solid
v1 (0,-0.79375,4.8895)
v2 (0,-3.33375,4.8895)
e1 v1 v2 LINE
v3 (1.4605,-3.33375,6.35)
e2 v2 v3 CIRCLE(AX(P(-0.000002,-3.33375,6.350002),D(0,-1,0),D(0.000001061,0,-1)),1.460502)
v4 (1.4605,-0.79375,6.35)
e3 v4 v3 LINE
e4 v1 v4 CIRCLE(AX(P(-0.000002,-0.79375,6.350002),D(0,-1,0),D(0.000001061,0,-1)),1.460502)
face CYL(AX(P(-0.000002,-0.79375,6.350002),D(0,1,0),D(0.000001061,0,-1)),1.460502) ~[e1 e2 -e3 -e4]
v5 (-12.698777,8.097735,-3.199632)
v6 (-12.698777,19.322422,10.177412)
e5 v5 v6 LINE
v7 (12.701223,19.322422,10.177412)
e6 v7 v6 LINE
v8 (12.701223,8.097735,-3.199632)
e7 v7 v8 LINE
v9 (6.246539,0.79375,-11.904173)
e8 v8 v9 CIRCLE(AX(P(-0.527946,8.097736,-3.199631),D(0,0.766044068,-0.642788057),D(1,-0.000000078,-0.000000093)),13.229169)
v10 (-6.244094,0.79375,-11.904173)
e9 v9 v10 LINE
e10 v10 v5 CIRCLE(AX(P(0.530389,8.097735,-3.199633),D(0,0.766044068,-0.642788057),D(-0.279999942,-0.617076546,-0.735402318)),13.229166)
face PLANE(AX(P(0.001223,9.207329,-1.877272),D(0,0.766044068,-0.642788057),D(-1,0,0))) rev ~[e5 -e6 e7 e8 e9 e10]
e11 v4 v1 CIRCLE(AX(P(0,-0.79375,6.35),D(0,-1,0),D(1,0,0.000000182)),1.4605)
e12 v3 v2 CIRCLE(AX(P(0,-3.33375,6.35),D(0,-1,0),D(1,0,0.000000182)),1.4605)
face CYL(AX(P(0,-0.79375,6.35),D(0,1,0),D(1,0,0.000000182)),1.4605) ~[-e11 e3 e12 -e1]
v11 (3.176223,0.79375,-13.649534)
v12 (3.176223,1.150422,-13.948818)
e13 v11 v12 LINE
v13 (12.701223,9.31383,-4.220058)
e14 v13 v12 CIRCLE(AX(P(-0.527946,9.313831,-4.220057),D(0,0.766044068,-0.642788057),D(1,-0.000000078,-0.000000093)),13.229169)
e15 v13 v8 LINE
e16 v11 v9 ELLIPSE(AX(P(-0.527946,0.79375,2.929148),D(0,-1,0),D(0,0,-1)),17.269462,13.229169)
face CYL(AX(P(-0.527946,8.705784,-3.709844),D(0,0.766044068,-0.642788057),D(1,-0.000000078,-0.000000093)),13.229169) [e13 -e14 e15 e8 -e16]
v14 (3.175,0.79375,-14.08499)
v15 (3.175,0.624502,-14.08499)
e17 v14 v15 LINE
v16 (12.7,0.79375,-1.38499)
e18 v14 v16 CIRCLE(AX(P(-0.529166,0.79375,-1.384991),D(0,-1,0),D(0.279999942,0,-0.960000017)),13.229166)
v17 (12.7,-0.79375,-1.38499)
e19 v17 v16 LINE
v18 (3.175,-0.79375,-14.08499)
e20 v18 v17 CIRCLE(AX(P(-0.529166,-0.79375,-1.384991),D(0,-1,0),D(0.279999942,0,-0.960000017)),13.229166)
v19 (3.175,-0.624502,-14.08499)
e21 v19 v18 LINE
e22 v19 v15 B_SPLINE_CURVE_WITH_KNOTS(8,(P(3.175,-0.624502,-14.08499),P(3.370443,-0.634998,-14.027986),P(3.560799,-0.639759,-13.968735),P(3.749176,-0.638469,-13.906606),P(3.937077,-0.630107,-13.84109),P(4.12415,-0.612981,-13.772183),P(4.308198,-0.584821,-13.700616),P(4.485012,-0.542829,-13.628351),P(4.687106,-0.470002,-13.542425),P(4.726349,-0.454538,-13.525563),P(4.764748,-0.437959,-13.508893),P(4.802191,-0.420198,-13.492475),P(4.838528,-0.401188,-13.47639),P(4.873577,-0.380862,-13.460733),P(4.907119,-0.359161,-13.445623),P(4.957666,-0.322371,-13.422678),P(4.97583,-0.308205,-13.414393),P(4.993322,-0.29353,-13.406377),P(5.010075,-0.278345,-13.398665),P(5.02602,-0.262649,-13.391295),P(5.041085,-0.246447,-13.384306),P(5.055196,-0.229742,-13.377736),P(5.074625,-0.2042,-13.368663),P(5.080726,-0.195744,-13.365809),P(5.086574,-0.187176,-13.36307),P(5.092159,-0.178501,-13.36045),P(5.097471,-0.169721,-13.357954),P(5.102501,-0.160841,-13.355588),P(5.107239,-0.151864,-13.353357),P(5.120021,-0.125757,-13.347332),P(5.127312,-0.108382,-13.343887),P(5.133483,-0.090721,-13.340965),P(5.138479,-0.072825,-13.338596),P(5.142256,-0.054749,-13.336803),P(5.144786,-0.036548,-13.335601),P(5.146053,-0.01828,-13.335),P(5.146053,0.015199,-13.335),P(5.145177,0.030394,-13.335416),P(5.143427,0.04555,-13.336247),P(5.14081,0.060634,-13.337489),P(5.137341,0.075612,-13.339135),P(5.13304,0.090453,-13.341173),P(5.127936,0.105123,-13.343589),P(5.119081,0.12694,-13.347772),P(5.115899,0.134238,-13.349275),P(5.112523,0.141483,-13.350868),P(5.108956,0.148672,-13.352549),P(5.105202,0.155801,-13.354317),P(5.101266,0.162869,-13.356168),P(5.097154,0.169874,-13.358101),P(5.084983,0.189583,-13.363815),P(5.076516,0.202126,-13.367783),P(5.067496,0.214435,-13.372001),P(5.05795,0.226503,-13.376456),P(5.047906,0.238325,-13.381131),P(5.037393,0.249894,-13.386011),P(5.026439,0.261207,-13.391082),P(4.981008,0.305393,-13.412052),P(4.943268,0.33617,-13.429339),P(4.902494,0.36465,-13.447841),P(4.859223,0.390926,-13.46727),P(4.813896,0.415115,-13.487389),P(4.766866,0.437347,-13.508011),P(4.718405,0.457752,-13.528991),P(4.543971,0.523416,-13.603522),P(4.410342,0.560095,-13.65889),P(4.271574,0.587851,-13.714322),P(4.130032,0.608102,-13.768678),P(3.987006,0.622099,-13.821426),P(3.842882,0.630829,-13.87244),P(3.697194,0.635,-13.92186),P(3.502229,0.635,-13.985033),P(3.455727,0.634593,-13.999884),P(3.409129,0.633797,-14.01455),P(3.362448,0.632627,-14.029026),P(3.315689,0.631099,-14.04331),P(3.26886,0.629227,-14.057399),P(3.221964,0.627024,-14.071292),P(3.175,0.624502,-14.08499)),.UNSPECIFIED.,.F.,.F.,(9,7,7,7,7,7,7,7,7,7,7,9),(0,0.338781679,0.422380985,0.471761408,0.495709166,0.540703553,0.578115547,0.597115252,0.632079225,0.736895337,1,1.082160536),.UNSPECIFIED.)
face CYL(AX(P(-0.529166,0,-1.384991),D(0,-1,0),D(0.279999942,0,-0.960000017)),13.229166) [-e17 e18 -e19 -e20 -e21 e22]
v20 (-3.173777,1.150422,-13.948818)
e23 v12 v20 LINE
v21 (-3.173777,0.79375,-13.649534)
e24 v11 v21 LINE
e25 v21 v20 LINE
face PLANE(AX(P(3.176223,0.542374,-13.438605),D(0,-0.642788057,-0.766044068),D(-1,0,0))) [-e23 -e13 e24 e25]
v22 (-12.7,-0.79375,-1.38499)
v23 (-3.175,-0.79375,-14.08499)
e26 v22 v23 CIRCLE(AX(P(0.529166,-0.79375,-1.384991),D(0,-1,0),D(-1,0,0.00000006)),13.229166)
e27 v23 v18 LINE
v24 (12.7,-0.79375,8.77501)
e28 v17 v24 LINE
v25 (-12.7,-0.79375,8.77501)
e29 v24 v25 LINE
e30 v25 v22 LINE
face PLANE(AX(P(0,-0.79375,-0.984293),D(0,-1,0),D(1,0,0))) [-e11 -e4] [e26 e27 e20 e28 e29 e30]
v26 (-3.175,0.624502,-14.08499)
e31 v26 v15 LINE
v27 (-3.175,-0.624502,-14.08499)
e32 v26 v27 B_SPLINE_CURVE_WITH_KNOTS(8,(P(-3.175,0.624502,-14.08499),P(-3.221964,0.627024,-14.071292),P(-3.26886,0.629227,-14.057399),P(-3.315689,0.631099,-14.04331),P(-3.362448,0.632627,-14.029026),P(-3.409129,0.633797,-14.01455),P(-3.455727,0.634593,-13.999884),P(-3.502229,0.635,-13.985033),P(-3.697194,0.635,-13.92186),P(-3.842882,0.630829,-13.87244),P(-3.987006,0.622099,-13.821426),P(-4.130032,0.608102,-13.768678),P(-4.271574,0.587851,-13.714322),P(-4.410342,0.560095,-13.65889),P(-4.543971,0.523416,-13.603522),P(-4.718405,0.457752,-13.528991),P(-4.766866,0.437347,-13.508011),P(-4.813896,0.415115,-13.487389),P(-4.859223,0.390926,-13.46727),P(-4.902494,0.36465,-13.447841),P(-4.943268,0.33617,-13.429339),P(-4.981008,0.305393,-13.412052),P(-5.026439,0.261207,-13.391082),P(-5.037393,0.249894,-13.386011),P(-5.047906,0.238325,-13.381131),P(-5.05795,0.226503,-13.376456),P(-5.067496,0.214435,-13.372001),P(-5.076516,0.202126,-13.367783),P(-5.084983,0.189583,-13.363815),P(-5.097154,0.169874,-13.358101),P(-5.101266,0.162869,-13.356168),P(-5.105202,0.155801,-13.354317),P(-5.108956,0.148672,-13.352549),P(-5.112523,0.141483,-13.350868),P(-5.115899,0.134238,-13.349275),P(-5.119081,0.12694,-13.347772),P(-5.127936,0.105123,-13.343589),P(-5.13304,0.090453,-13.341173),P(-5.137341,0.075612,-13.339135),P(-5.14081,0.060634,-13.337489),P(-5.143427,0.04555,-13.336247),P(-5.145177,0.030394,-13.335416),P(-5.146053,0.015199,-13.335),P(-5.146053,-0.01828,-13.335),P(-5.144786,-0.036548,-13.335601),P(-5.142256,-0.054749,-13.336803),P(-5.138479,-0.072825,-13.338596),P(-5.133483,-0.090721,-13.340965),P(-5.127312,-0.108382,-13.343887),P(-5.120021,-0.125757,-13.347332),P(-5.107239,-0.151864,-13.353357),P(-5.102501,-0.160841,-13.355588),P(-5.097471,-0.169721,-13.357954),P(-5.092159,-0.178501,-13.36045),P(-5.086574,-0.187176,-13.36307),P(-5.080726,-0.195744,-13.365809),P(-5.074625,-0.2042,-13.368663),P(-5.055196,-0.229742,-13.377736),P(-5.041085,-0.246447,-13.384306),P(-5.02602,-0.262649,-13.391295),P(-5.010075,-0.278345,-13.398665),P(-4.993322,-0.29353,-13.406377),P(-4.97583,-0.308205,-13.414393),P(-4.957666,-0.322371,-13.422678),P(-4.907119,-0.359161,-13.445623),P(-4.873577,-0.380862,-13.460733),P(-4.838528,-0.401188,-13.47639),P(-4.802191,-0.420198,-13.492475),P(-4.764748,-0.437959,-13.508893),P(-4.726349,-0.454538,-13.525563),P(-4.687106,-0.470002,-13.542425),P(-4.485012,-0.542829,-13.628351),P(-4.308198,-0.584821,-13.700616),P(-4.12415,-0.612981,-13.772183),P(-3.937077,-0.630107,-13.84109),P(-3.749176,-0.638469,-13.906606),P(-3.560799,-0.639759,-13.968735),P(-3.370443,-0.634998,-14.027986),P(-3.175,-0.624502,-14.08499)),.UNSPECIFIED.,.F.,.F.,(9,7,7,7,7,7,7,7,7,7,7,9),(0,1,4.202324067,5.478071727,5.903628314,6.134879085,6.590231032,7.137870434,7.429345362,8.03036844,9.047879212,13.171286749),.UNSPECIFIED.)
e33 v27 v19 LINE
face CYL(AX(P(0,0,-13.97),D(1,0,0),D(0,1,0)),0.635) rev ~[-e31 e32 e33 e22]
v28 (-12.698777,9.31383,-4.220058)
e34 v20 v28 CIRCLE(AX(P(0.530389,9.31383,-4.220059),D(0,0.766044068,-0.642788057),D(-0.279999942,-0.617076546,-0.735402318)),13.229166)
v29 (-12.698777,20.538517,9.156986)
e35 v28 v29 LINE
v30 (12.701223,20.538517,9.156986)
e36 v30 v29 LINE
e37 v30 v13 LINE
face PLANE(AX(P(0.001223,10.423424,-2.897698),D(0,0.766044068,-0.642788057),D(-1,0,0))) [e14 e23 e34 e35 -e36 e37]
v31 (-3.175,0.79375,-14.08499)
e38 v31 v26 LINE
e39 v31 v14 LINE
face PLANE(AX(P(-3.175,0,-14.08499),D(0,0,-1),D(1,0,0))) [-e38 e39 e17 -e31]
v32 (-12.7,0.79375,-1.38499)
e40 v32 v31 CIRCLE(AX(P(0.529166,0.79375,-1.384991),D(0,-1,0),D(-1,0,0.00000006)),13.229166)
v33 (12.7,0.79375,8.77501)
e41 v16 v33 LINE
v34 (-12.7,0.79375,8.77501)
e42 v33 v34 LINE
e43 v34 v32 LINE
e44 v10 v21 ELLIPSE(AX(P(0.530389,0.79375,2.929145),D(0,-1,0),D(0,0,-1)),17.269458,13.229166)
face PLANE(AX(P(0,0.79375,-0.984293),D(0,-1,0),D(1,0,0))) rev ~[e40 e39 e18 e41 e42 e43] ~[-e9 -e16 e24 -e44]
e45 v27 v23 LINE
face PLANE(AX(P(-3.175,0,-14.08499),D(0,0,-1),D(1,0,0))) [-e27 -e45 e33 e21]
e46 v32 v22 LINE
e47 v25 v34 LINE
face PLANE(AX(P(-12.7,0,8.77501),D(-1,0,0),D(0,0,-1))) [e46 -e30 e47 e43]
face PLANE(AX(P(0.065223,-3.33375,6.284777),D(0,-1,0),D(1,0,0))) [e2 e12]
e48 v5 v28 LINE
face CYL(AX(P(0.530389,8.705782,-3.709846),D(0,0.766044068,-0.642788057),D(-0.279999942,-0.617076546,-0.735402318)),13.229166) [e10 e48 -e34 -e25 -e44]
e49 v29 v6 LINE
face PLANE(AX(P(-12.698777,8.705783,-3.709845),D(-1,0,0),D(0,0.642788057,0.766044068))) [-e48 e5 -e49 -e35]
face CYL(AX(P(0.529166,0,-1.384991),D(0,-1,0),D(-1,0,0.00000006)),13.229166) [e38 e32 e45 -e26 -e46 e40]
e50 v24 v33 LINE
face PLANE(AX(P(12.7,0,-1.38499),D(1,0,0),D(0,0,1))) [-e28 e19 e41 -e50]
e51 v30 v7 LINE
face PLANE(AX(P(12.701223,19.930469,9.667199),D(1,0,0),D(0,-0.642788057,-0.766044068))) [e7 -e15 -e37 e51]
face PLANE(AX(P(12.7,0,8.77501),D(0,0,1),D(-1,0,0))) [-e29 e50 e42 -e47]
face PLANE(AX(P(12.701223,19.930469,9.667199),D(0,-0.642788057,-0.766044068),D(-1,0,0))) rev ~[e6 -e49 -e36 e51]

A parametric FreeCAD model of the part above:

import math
import FreeCAD as App
import Part
import Sketcher
Q = App.Units.Quantity

doc = App.newDocument("Part")
body = doc.addObject("PartDesign::Body", "Body")

sketch1 = body.newObject("Sketcher::SketchObject", "Sketch")
sketch1.Placement = App.Placement(App.Vector(0, 6.935504, -5.819579), App.Rotation(App.Vector(-1, 0, 0), App.Vector(0, 0.642788057, 0.766044068), App.Vector(0, 0.766044068, -0.642788057), "ZXY"))
sketch1.addGeometry(Part.ArcOfCircle(Part.Circle(App.Vector(1, 3, 0), App.Vector(0, 0, 1), 13), math.radians(-180), math.radians(-106)), False)
sketch1.addGeometry(Part.LineSegment(App.Vector(-3, -10, 0), App.Vector(3, -10, 0)), False)
sketch1.addGeometry(Part.ArcOfCircle(Part.Circle(App.Vector(-1, 3, 0), App.Vector(0, 0, 1), 13), math.radians(-74), math.radians(0)), False)
sketch1.addGeometry(Part.LineSegment(App.Vector(13, 3, 0), App.Vector(13, 20, 0)), False)
sketch1.addGeometry(Part.LineSegment(App.Vector(13, 20, 0), App.Vector(-13, 20, 0)), False)
sketch1.addGeometry(Part.LineSegment(App.Vector(-13, 20, 0), App.Vector(-13, 3, 0)), False)
sketch1.addConstraint(Sketcher.Constraint("Coincident", 0, 2, 1, 1))
sketch1.addConstraint(Sketcher.Constraint("Coincident", 1, 2, 2, 1))
sketch1.addConstraint(Sketcher.Constraint("Tangent", 2, 2, 3, 1))
sketch1.addConstraint(Sketcher.Constraint("Coincident", 3, 2, 4, 1))
sketch1.addConstraint(Sketcher.Constraint("Coincident", 4, 2, 5, 1))
sketch1.addConstraint(Sketcher.Constraint("Tangent", 5, 2, 0, 1))
sketch1.addConstraint(Sketcher.Constraint("Horizontal", 1))
sketch1.addConstraint(Sketcher.Constraint("Vertical", 3))
sketch1.addConstraint(Sketcher.Constraint("Horizontal", 4))
sketch1.addConstraint(Sketcher.Constraint("Vertical", 5))
sketch1.addConstraint(Sketcher.Constraint("Horizontal", 0, 3, 2, 2))
sketch1.addConstraint(Sketcher.Constraint("DistanceX", 4, 2, 4, 1, Q("1 in")))
sketch1.addConstraint(Sketcher.Constraint("DistanceX", 1, 1, 1, 2, Q("0.25 in")))
sketch1.addConstraint(Sketcher.Constraint("DistanceY", 0, 2, 2, 3, Q("0.5 in")))
sketch1.addConstraint(Sketcher.Constraint("DistanceY", 3, 1, 3, 2, Q("0.6875 in")))
sketch1.addConstraint(Sketcher.Constraint("Radius", 0, Q("13.229169 mm")))
sketch1.addConstraint(Sketcher.Constraint("DistanceX", 2, 3, -1, 1, Q("0.530389 mm")))
sketch1.addConstraint(Sketcher.Constraint("DistanceY", -1, 1, 0, 3, Q("2.754065 mm")))
pad1 = body.newObject("PartDesign::Pad", "Pad")
pad1.Profile = sketch1
pad1.Length = Q("0.0625 in")
pad1.Midplane = True

sketch2 = body.newObject("Sketcher::SketchObject", "Sketch001")
sketch2.AttachmentSupport = (doc.getObject("XZ_Plane"), [""])
sketch2.MapMode = "FlatFace"
sketch2.addGeometry(Part.LineSegment(App.Vector(-13, 9, 0), App.Vector(-13, -1, 0)), False)
sketch2.addGeometry(Part.ArcOfCircle(Part.Circle(App.Vector(1, -1, 0), App.Vector(0, 0, 1), 13), math.radians(180), math.radians(254)), False)
sketch2.addGeometry(Part.LineSegment(App.Vector(-3, -14, 0), App.Vector(3, -14, 0)), False)
sketch2.addGeometry(Part.ArcOfCircle(Part.Circle(App.Vector(-1, -1, 0), App.Vector(0, 0, 1), 13), math.radians(-74), math.radians(0)), False)
sketch2.addGeometry(Part.LineSegment(App.Vector(13, -1, 0), App.Vector(13, 9, 0)), False)
sketch2.addGeometry(Part.LineSegment(App.Vector(13, 9, 0), App.Vector(-13, 9, 0)), False)
sketch2.addConstraint(Sketcher.Constraint("Tangent", 0, 2, 1, 1))
sketch2.addConstraint(Sketcher.Constraint("Coincident", 1, 2, 2, 1))
sketch2.addConstraint(Sketcher.Constraint("Coincident", 2, 2, 3, 1))
sketch2.addConstraint(Sketcher.Constraint("Tangent", 3, 2, 4, 1))
sketch2.addConstraint(Sketcher.Constraint("Coincident", 4, 2, 5, 1))
sketch2.addConstraint(Sketcher.Constraint("Coincident", 5, 2, 0, 1))
sketch2.addConstraint(Sketcher.Constraint("Vertical", 0))
sketch2.addConstraint(Sketcher.Constraint("Horizontal", 2))
sketch2.addConstraint(Sketcher.Constraint("Vertical", 4))
sketch2.addConstraint(Sketcher.Constraint("Horizontal", 5))
sketch2.addConstraint(Sketcher.Constraint("Equal", 1, 3))
sketch2.addConstraint(Sketcher.Constraint("Symmetric", 1, 3, 3, 3, -2))
sketch2.addConstraint(Sketcher.Constraint("DistanceX", 5, 2, 5, 1, Q("1 in")))
sketch2.addConstraint(Sketcher.Constraint("DistanceY", 0, 2, 0, 1, Q("0.4 in")))
sketch2.addConstraint(Sketcher.Constraint("DistanceX", 2, 1, 2, 2, Q("0.25 in")))
sketch2.addConstraint(Sketcher.Constraint("DistanceY", 1, 2, 3, 3, Q("0.5 in")))
sketch2.addConstraint(Sketcher.Constraint("DistanceY", 1, 3, -1, 1, Q("1.384991 mm")))
pad2 = body.newObject("PartDesign::Pad", "Pad001")
pad2.Profile = sketch2
pad2.Length = Q("0.0625 in")
pad2.Midplane = True

sketch3 = body.newObject("Sketcher::SketchObject", "Sketch002")
sketch3.AttachmentSupport = (doc.getObject("YZ_Plane"), [""])
sketch3.MapMode = "FlatFace"
sketch3.addGeometry(Part.Circle(App.Vector(0, -14, 0), App.Vector(0, 0, 1), 0.6), False)
sketch3.addConstraint(Sketcher.Constraint("PointOnObject", 0, 3, -2))
sketch3.addConstraint(Sketcher.Constraint("Diameter", 0, Q("0.05 in")))
sketch3.addConstraint(Sketcher.Constraint("DistanceY", 0, 3, -1, 1, Q("0.55 in")))
pocket1 = body.newObject("PartDesign::Pocket", "Pocket")
pocket1.Profile = sketch3
pocket1.Length = Q("2 in")
pocket1.Midplane = True

sketch4 = body.newObject("Sketcher::SketchObject", "Sketch003")
sketch4.AttachmentSupport = (doc.getObject("XZ_Plane"), [""])
sketch4.MapMode = "FlatFace"
sketch4.AttachmentOffset = App.Placement(App.Vector(0, 0, 0.03125 * 25.4), App.Rotation())
sketch4.addGeometry(Part.ArcOfCircle(Part.Circle(App.Vector(0, 6.4, 0), App.Vector(0, 0, 1), 1.5), math.radians(-90), math.radians(0)), False)
sketch4.addGeometry(Part.ArcOfCircle(Part.Circle(App.Vector(0, 6.3, 0), App.Vector(0, 0, 1), 1.5), math.radians(0), math.radians(270)), False)
sketch4.addConstraint(Sketcher.Constraint("Tangent", 0, 1, 1, 2))
sketch4.addConstraint(Sketcher.Constraint("Coincident", 1, 1, 0, 2))
sketch4.addConstraint(Sketcher.Constraint("PointOnObject", 0, 3, -2))
sketch4.addConstraint(Sketcher.Constraint("PointOnObject", 0, 1, -2))
sketch4.addConstraint(Sketcher.Constraint("Horizontal", 0, 3, 1, 1))
sketch4.addConstraint(Sketcher.Constraint("Radius", 0, Q("0.0575001 in")))
sketch4.addConstraint(Sketcher.Constraint("DistanceY", -1, 1, 0, 3, Q("0.2500001 in")))
pad3 = body.newObject("PartDesign::Pad", "Pad002")
pad3.Profile = sketch4
pad3.Length = Q("0.1 in")

doc.recompute()
